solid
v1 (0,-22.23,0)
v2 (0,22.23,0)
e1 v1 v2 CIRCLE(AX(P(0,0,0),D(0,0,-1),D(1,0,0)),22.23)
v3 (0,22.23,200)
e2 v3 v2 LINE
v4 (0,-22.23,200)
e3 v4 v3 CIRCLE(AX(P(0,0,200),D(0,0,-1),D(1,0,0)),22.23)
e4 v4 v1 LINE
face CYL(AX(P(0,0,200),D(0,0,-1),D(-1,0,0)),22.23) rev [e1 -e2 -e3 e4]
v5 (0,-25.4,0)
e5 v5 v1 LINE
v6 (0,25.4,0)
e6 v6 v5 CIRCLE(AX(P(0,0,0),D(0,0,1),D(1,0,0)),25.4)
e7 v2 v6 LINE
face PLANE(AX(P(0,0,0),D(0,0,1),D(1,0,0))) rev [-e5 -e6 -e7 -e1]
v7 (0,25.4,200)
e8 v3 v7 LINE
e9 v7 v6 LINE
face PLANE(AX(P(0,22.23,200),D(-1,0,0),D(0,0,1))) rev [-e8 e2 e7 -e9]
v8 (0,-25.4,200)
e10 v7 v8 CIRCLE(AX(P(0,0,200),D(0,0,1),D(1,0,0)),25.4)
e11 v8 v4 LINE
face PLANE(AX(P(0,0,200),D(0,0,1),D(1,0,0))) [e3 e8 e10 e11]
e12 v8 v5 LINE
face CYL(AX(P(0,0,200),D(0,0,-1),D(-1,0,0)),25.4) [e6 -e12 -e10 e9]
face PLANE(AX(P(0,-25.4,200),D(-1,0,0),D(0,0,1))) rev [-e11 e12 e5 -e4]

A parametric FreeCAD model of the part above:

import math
import FreeCAD as App
import Part
import Sketcher

V = App.Vector
Q = App.Units.Quantity

doc = App.newDocument("Part")
body = doc.addObject("PartDesign::Body", "Body")

# Sketch on XY plane
sketch1 = doc.addObject("Sketcher::SketchObject", "Sketch")
body.addObject(sketch1)
sketch1.AttachmentSupport = (doc.XY_Plane, [""])
sketch1.MapMode = "FlatFace"
sketch1.addGeometry(Part.LineSegment(V(0, -25.4, 0), V(0, -22.2, 0)), False)
sketch1.addGeometry(Part.ArcOfCircle(Part.Circle(V(0, 0, 0), V(0, 0, 1), 22.2), math.radians(90), math.radians(270)), False)
sketch1.addGeometry(Part.LineSegment(V(0, 22.2, 0), V(0, 25.4, 0)), False)
sketch1.addGeometry(Part.ArcOfCircle(Part.Circle(V(0, 0, 0), V(0, 0, 1), 25.4), math.radians(90), math.radians(270)), False)
sketch1.addConstraint(Sketcher.Constraint("Coincident", 0, 2, 1, 2))
sketch1.addConstraint(Sketcher.Constraint("Coincident", 1, 1, 2, 1))
sketch1.addConstraint(Sketcher.Constraint("Coincident", 2, 2, 3, 1))
sketch1.addConstraint(Sketcher.Constraint("Coincident", 3, 2, 0, 1))
sketch1.addConstraint(Sketcher.Constraint("Vertical", 0))
sketch1.addConstraint(Sketcher.Constraint("Vertical", 2))
sketch1.addConstraint(Sketcher.Constraint("Coincident", 1, 3, -1, 1))
sketch1.addConstraint(Sketcher.Constraint("Coincident", 3, 3, -1, 1))
sketch1.addConstraint(Sketcher.Constraint("PointOnObject", 0, 2, -2))
sketch1.addConstraint(Sketcher.Constraint("PointOnObject", 1, 1, -2))
sketch1.addConstraint(Sketcher.Constraint("Radius", 3, Q("25.4 mm")))
sketch1.addConstraint(Sketcher.Constraint("Radius", 1, Q("22.23 mm")))
pad1 = doc.addObject("PartDesign::Pad", "Pad")
body.addObject(pad1)
pad1.Profile = sketch1
pad1.Length = 200

doc.recompute()
